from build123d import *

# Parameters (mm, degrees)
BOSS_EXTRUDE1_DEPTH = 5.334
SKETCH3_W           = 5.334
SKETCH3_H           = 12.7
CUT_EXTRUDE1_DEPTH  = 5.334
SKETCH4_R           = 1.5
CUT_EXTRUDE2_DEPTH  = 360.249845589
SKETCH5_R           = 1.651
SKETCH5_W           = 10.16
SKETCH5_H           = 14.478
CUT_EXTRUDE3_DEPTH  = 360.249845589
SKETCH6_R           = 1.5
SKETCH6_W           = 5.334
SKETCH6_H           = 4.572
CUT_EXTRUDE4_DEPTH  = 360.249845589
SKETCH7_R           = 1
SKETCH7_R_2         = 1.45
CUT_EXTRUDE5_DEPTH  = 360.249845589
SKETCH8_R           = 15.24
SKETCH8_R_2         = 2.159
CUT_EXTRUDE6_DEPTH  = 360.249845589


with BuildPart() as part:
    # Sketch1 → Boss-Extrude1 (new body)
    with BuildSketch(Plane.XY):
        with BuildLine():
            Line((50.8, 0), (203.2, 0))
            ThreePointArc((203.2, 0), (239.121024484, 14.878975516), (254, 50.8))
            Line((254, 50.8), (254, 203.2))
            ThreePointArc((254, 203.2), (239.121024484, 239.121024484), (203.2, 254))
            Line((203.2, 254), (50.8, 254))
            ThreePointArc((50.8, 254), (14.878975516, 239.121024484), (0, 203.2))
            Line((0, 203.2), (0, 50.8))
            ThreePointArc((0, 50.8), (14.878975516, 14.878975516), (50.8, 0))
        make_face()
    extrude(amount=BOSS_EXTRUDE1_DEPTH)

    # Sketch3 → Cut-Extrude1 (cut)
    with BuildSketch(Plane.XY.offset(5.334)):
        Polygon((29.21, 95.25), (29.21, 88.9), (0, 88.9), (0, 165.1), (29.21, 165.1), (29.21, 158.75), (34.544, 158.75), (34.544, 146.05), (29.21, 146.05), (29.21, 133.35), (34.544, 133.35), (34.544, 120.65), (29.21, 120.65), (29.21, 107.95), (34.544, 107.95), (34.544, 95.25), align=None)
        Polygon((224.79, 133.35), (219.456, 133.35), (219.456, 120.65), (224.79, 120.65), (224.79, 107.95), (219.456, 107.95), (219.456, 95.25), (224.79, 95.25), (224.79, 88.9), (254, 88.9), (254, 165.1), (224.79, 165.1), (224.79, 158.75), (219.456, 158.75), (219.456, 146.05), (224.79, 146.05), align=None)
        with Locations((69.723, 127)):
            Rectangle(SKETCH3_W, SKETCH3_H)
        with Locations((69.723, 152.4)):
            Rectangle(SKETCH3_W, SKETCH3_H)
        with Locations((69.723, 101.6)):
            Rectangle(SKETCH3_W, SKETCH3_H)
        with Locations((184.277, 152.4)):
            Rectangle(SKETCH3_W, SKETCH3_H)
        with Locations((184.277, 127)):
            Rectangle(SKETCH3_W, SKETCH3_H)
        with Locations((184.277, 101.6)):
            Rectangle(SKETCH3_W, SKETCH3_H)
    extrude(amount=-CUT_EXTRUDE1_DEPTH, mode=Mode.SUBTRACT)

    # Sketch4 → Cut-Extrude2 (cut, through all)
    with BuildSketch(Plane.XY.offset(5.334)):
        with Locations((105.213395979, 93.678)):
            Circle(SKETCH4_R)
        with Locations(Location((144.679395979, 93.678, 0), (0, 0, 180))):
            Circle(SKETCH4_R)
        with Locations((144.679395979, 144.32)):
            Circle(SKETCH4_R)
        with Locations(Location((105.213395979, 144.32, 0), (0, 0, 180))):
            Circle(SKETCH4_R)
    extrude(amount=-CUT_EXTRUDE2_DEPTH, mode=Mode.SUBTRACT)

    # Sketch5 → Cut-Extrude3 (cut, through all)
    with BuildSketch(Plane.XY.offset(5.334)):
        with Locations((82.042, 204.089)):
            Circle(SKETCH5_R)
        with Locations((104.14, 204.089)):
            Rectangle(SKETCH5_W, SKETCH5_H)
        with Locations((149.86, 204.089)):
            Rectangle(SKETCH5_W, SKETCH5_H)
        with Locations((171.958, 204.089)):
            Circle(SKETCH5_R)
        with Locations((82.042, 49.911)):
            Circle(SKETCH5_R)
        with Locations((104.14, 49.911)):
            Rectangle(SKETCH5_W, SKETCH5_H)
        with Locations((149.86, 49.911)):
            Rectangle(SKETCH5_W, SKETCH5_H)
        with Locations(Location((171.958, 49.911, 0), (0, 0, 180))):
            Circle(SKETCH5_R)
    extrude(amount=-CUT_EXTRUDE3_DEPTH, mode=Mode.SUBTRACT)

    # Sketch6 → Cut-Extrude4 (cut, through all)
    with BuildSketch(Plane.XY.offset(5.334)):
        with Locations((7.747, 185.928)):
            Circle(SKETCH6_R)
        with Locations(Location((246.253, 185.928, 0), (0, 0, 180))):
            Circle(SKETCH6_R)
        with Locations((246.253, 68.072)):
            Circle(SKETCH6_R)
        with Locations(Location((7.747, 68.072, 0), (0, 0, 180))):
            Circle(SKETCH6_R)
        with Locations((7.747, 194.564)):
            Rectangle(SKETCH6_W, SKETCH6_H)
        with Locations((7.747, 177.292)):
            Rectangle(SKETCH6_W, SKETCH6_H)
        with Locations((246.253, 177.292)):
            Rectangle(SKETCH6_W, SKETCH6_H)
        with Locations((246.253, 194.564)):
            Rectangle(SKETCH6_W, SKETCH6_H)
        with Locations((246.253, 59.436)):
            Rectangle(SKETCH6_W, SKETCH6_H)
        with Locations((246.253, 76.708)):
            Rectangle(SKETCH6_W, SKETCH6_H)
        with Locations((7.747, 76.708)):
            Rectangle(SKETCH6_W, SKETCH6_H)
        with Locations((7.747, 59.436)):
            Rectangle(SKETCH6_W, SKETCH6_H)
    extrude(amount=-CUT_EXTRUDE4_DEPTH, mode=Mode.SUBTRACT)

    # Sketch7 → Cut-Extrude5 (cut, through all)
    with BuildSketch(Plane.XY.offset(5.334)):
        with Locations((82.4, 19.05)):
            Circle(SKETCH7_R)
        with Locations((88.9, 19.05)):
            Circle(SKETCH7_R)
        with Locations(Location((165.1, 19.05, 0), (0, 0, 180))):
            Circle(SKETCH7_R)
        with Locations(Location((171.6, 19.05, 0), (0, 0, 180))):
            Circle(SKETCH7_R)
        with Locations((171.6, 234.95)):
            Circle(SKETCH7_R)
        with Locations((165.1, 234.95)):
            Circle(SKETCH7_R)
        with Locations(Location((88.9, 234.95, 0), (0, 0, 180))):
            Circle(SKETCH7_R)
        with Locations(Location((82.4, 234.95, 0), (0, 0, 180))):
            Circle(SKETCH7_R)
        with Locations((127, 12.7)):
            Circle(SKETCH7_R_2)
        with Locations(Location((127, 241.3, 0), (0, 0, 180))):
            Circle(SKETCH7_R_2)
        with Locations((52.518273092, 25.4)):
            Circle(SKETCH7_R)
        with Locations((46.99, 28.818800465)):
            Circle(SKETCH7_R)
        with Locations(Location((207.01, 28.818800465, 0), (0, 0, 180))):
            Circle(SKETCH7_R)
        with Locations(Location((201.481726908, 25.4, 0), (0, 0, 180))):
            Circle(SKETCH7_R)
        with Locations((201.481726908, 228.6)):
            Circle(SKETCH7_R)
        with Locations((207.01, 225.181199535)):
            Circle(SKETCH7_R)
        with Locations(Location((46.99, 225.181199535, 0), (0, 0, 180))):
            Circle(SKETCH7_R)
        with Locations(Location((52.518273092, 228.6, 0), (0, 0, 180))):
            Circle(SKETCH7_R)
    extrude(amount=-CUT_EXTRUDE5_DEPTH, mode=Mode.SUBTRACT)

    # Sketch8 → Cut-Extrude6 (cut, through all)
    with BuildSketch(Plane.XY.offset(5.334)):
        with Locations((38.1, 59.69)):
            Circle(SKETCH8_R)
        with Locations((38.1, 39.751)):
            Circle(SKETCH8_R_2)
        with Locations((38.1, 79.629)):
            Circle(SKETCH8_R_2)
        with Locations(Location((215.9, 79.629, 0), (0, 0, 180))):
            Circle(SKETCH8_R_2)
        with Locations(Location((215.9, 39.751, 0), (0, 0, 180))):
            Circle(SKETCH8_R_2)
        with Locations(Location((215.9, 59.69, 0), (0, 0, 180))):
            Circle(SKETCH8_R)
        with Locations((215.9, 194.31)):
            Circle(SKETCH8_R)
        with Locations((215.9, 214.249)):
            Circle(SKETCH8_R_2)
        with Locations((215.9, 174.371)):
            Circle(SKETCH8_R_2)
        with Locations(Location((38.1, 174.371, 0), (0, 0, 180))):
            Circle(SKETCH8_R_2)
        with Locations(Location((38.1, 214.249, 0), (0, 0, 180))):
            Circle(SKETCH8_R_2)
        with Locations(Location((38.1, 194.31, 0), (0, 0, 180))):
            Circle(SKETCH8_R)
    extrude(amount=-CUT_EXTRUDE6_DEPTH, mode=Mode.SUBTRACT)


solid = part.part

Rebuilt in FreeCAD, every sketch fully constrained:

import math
import FreeCAD as App
import Part
import Sketcher

V = App.Vector
Q = App.Units.Quantity


def add_polygon(sketch, points):
    """Adds a closed chain of lines whose ends are joined by coincident constraints."""
    first, n = sketch.GeometryCount, len(points)
    for a, b in zip(points, points[1:] + points[:1]):
        sketch.addGeometry(Part.LineSegment(App.Vector(*a, 0), App.Vector(*b, 0)), False)
    for i in range(n):
        sketch.addConstraint(Sketcher.Constraint("Coincident", first + i, 2, first + (i + 1) % n, 1))

doc = App.newDocument("Part")
body = doc.addObject("PartDesign::Body", "Body")

# Sketch on XY plane
sketch1 = doc.addObject("Sketcher::SketchObject", "Sketch")
body.addObject(sketch1)
sketch1.AttachmentSupport = (doc.XY_Plane, [""])
sketch1.MapMode = "FlatFace"
sketch1.addGeometry(Part.LineSegment(V(50.8, 0, 0), V(203.2, 0, 0)), False)
sketch1.addGeometry(Part.ArcOfCircle(Part.Circle(V(203.2, 50.8, 0), V(0, 0, 1), 50.8), math.radians(-90), math.radians(0)), False)
sketch1.addGeometry(Part.LineSegment(V(254, 50.8, 0), V(254, 203.2, 0)), False)
sketch1.addGeometry(Part.ArcOfCircle(Part.Circle(V(203.2, 203.2, 0), V(0, 0, 1), 50.8), math.radians(0), math.radians(90)), False)
sketch1.addGeometry(Part.LineSegment(V(203.2, 254, 0), V(50.8, 254, 0)), False)
sketch1.addGeometry(Part.ArcOfCircle(Part.Circle(V(50.8, 203.2, 0), V(0, 0, 1), 50.8), math.radians(90), math.radians(180)), False)
sketch1.addGeometry(Part.LineSegment(V(0, 203.2, 0), V(0, 50.8, 0)), False)
sketch1.addGeometry(Part.ArcOfCircle(Part.Circle(V(50.8, 50.8, 0), V(0, 0, 1), 50.8), math.radians(-180), math.radians(-90)), False)
sketch1.addConstraint(Sketcher.Constraint("Tangent", 0, 2, 1, 1))
sketch1.addConstraint(Sketcher.Constraint("Tangent", 1, 2, 2, 1))
sketch1.addConstraint(Sketcher.Constraint("Tangent", 2, 2, 3, 1))
sketch1.addConstraint(Sketcher.Constraint("Tangent", 3, 2, 4, 1))
sketch1.addConstraint(Sketcher.Constraint("Tangent", 4, 2, 5, 1))
sketch1.addConstraint(Sketcher.Constraint("Tangent", 5, 2, 6, 1))
sketch1.addConstraint(Sketcher.Constraint("Tangent", 6, 2, 7, 1))
sketch1.addConstraint(Sketcher.Constraint("Tangent", 7, 2, 0, 1))
sketch1.addConstraint(Sketcher.Constraint("Horizontal", 0))
sketch1.addConstraint(Sketcher.Constraint("Vertical", 2))
sketch1.addConstraint(Sketcher.Constraint("Horizontal", 4))
sketch1.addConstraint(Sketcher.Constraint("Vertical", 6))
sketch1.addConstraint(Sketcher.Constraint("Equal", 1, 3))
sketch1.addConstraint(Sketcher.Constraint("Equal", 3, 5))
sketch1.addConstraint(Sketcher.Constraint("Equal", 5, 7))
sketch1.addConstraint(Sketcher.Constraint("PointOnObject", 0, 2, -1))
sketch1.addConstraint(Sketcher.Constraint("PointOnObject", 5, 2, -2))
sketch1.addConstraint(Sketcher.Constraint("Equal", 4, 2))
sketch1.addConstraint(Sketcher.Constraint("Radius", 1, Q("2 in")))
sketch1.addConstraint(Sketcher.Constraint("DistanceX", 0, 1, 0, 2, Q("6 in")))
pad1 = doc.addObject("PartDesign::Pad", "Pad")
body.addObject(pad1)
pad1.Profile = sketch1
pad1.Length = Q("0.21 in")

# Sketch on XY plane
sketch2 = doc.addObject("Sketcher::SketchObject", "Sketch001")
body.addObject(sketch2)
sketch2.AttachmentSupport = (doc.XY_Plane, [""])
sketch2.MapMode = "FlatFace"
sketch2.AttachmentOffset = App.Placement(V(0, 0, 0.21 * 25.4), App.Rotation())
add_polygon(sketch2, [(29.21, 88.9), (29.21, 95.25), (34.544, 95.25), (34.544, 107.95), (29.21, 107.95), (29.21, 120.65), (34.544, 120.65), (34.544, 133.35), (29.21, 133.35), (29.21, 146.05), (34.544, 146.05), (34.544, 158.75), (29.21, 158.75), (29.21, 165.1), (0, 165.1), (0, 88.9)])  # lines 0-15
add_polygon(sketch2, [(224.79, 133.35), (219.456, 133.35), (219.456, 120.65), (224.79, 120.65), (224.79, 107.95), (219.456, 107.95), (219.456, 95.25), (224.79, 95.25), (224.79, 88.9), (254, 88.9), (254, 165.1), (224.79, 165.1), (224.79, 158.75), (219.456, 158.75), (219.456, 146.05), (224.79, 146.05)])  # lines 16-31
add_polygon(sketch2, [(67.056, 133.35), (67.056, 120.65), (72.39, 120.65), (72.39, 133.35)])  # lines 32-35
add_polygon(sketch2, [(67.056, 158.75), (67.056, 146.05), (72.39, 146.05), (72.39, 158.75)])  # lines 36-39
add_polygon(sketch2, [(67.056, 107.95), (67.056, 95.25), (72.39, 95.25), (72.39, 107.95)])  # lines 40-43
add_polygon(sketch2, [(181.61, 158.75), (181.61, 146.05), (186.944, 146.05), (186.944, 158.75)])  # lines 44-47
add_polygon(sketch2, [(181.61, 133.35), (181.61, 120.65), (186.944, 120.65), (186.944, 133.35)])  # lines 48-51
add_polygon(sketch2, [(181.61, 107.95), (181.61, 95.25), (186.944, 95.25), (186.944, 107.95)])  # lines 52-55
sketch2.addConstraint(Sketcher.Constraint("Vertical", 0))
sketch2.addConstraint(Sketcher.Constraint("Horizontal", 1))
sketch2.addConstraint(Sketcher.Constraint("Vertical", 2))
sketch2.addConstraint(Sketcher.Constraint("Horizontal", 3))
sketch2.addConstraint(Sketcher.Constraint("Vertical", 4))
sketch2.addConstraint(Sketcher.Constraint("Horizontal", 5))
sketch2.addConstraint(Sketcher.Constraint("Vertical", 6))
sketch2.addConstraint(Sketcher.Constraint("Horizontal", 7))
sketch2.addConstraint(Sketcher.Constraint("Vertical", 8))
sketch2.addConstraint(Sketcher.Constraint("Horizontal", 9))
sketch2.addConstraint(Sketcher.Constraint("Vertical", 10))
sketch2.addConstraint(Sketcher.Constraint("Horizontal", 11))
sketch2.addConstraint(Sketcher.Constraint("Vertical", 12))
sketch2.addConstraint(Sketcher.Constraint("Horizontal", 13))
sketch2.addConstraint(Sketcher.Constraint("Vertical", 14))
sketch2.addConstraint(Sketcher.Constraint("Horizontal", 15))
sketch2.addConstraint(Sketcher.Constraint("Horizontal", 16))
sketch2.addConstraint(Sketcher.Constraint("Vertical", 17))
sketch2.addConstraint(Sketcher.Constraint("Horizontal", 18))
sketch2.addConstraint(Sketcher.Constraint("Vertical", 19))
sketch2.addConstraint(Sketcher.Constraint("Horizontal", 20))
sketch2.addConstraint(Sketcher.Constraint("Vertical", 21))
sketch2.addConstraint(Sketcher.Constraint("Horizontal", 22))
sketch2.addConstraint(Sketcher.Constraint("Vertical", 23))
sketch2.addConstraint(Sketcher.Constraint("Horizontal", 24))
sketch2.addConstraint(Sketcher.Constraint("Vertical", 25))
sketch2.addConstraint(Sketcher.Constraint("Horizontal", 26))
sketch2.addConstraint(Sketcher.Constraint("Vertical", 27))
sketch2.addConstraint(Sketcher.Constraint("Horizontal", 28))
sketch2.addConstraint(Sketcher.Constraint("Vertical", 29))
sketch2.addConstraint(Sketcher.Constraint("Horizontal", 30))
sketch2.addConstraint(Sketcher.Constraint("Vertical", 31))
sketch2.addConstraint(Sketcher.Constraint("Vertical", 32))
sketch2.addConstraint(Sketcher.Constraint("Horizontal", 33))
sketch2.addConstraint(Sketcher.Constraint("Vertical", 34))
sketch2.addConstraint(Sketcher.Constraint("Horizontal", 35))
sketch2.addConstraint(Sketcher.Constraint("Vertical", 36))
sketch2.addConstraint(Sketcher.Constraint("Horizontal", 37))
sketch2.addConstraint(Sketcher.Constraint("Vertical", 38))
sketch2.addConstraint(Sketcher.Constraint("Horizontal", 39))
sketch2.addConstraint(Sketcher.Constraint("Vertical", 40))
sketch2.addConstraint(Sketcher.Constraint("Horizontal", 41))
sketch2.addConstraint(Sketcher.Constraint("Vertical", 42))
sketch2.addConstraint(Sketcher.Constraint("Horizontal", 43))
sketch2.addConstraint(Sketcher.Constraint("Vertical", 44))
sketch2.addConstraint(Sketcher.Constraint("Horizontal", 45))
sketch2.addConstraint(Sketcher.Constraint("Vertical", 46))
sketch2.addConstraint(Sketcher.Constraint("Horizontal", 47))
sketch2.addConstraint(Sketcher.Constraint("Vertical", 48))
sketch2.addConstraint(Sketcher.Constraint("Horizontal", 49))
sketch2.addConstraint(Sketcher.Constraint("Vertical", 50))
sketch2.addConstraint(Sketcher.Constraint("Horizontal", 51))
sketch2.addConstraint(Sketcher.Constraint("Vertical", 52))
sketch2.addConstraint(Sketcher.Constraint("Horizontal", 53))
sketch2.addConstraint(Sketcher.Constraint("Vertical", 54))
sketch2.addConstraint(Sketcher.Constraint("Horizontal", 55))
sketch2.addConstraint(Sketcher.Constraint("PointOnObject", 13, 2, -2))
sketch2.addConstraint(Sketcher.Constraint("Horizontal", 7, 2, 16, 2))
sketch2.addConstraint(Sketcher.Constraint("Horizontal", 5, 2, 17, 2))
sketch2.addConstraint(Sketcher.Constraint("Horizontal", 3, 2, 19, 2))
sketch2.addConstraint(Sketcher.Constraint("Horizontal", 1, 2, 21, 2))
sketch2.addConstraint(Sketcher.Constraint("Horizontal", 15, 2, 23, 2))
sketch2.addConstraint(Sketcher.Constraint("Horizontal", 13, 2, 25, 2))
sketch2.addConstraint(Sketcher.Constraint("Horizontal", 11, 2, 27, 2))
sketch2.addConstraint(Sketcher.Constraint("Horizontal", 9, 2, 29, 2))
sketch2.addConstraint(Sketcher.Constraint("Horizontal", 18, 2, 32, 2))
sketch2.addConstraint(Sketcher.Constraint("Horizontal", 31, 2, 34, 2))
sketch2.addConstraint(Sketcher.Constraint("Horizontal", 30, 2, 36, 2))
sketch2.addConstraint(Sketcher.Constraint("Horizontal", 28, 2, 38, 2))
sketch2.addConstraint(Sketcher.Constraint("Horizontal", 22, 2, 40, 2))
sketch2.addConstraint(Sketcher.Constraint("Horizontal", 20, 2, 42, 2))
sketch2.addConstraint(Sketcher.Constraint("Horizontal", 37, 2, 44, 2))
sketch2.addConstraint(Sketcher.Constraint("Horizontal", 39, 2, 46, 2))
sketch2.addConstraint(Sketcher.Constraint("Horizontal", 33, 2, 48, 2))
sketch2.addConstraint(Sketcher.Constraint("Horizontal", 35, 2, 50, 2))
sketch2.addConstraint(Sketcher.Constraint("Horizontal", 41, 2, 52, 2))
sketch2.addConstraint(Sketcher.Constraint("Horizontal", 43, 2, 54, 2))
sketch2.addConstraint(Sketcher.Constraint("Vertical", 0, 2, 3, 2))
sketch2.addConstraint(Sketcher.Constraint("Vertical", 2, 2, 5, 2))
sketch2.addConstraint(Sketcher.Constraint("Vertical", 4, 2, 7, 2))
sketch2.addConstraint(Sketcher.Constraint("Vertical", 6, 2, 9, 2))
sketch2.addConstraint(Sketcher.Constraint("Vertical", 8, 2, 11, 2))
sketch2.addConstraint(Sketcher.Constraint("Vertical", 17, 2, 20, 2))
sketch2.addConstraint(Sketcher.Constraint("Vertical", 19, 2, 22, 2))
sketch2.addConstraint(Sketcher.Constraint("Vertical", 23, 2, 26, 2))
sketch2.addConstraint(Sketcher.Constraint("Vertical", 21, 2, 28, 2))
sketch2.addConstraint(Sketcher.Constraint("Vertical", 27, 2, 30, 2))
sketch2.addConstraint(Sketcher.Constraint("Vertical", 35, 2, 36, 2))
sketch2.addConstraint(Sketcher.Constraint("Vertical", 34, 2, 37, 2))
sketch2.addConstraint(Sketcher.Constraint("Vertical", 39, 2, 40, 2))
sketch2.addConstraint(Sketcher.Constraint("Vertical", 38, 2, 41, 2))
sketch2.addConstraint(Sketcher.Constraint("Vertical", 47, 2, 48, 2))
sketch2.addConstraint(Sketcher.Constraint("Vertical", 46, 2, 49, 2))
sketch2.addConstraint(Sketcher.Constraint("Vertical", 51, 2, 52, 2))
sketch2.addConstraint(Sketcher.Constraint("Vertical", 50, 2, 53, 2))
sketch2.addConstraint(Sketcher.Constraint("Equal", 11, 16))
sketch2.addConstraint(Sketcher.Constraint("Equal", 15, 24))
sketch2.addConstraint(Sketcher.Constraint("Equal", 30, 33))
sketch2.addConstraint(Sketcher.Constraint("Equal", 43, 45))
sketch2.addConstraint(Sketcher.Constraint("Equal", 2, 4))
sketch2.addConstraint(Sketcher.Constraint("Equal", 4, 6))
sketch2.addConstraint(Sketcher.Constraint("Equal", 6, 8))
sketch2.addConstraint(Sketcher.Constraint("Equal", 8, 10))
sketch2.addConstraint(Sketcher.Constraint("Equal", 0, 12))
sketch2.addConstraint(Sketcher.Constraint("DistanceY", 14, 2, 14, 1, Q("3 in")))
sketch2.addConstraint(Sketcher.Constraint("DistanceY", 2, 1, 2, 2, Q("0.5 in")))
sketch2.addConstraint(Sketcher.Constraint("DistanceX", -1, 1, 24, 2, Q("10 in")))
sketch2.addConstraint(Sketcher.Constraint("DistanceX", 1, 1, 1, 2, Q("0.21 in")))
sketch2.addConstraint(Sketcher.Constraint("DistanceX", 13, 2, 13, 1, Q("1.15 in")))
sketch2.addConstraint(Sketcher.Constraint("DistanceY", -1, 1, 12, 2, Q("6.5 in")))
sketch2.addConstraint(Sketcher.Constraint("DistanceX", 4, 2, 33, 2, Q("1.7 in")))
sketch2.addConstraint(Sketcher.Constraint("DistanceX", 44, 2, 30, 2, Q("1.7 in")))
pocket1 = doc.addObject("PartDesign::Pocket", "Pocket")
body.addObject(pocket1)
pocket1.Profile = sketch2
pocket1.Length = Q("0.21 in")

# Sketch on XY plane
sketch3 = doc.addObject("Sketcher::SketchObject", "Sketch002")
body.addObject(sketch3)
sketch3.AttachmentSupport = (doc.XY_Plane, [""])
sketch3.MapMode = "FlatFace"
sketch3.AttachmentOffset = App.Placement(V(0, 0, 0.21 * 25.4), App.Rotation())
sketch3.addGeometry(Part.Circle(V(105.213396, 93.678, 0), V(0, 0, 1), 1.5), False)
sketch3.addGeometry(Part.Circle(V(144.679396, 93.678, 0), V(0, 0, 1), 1.5), False)
sketch3.addGeometry(Part.Circle(V(144.679396, 144.32, 0), V(0, 0, 1), 1.5), False)
sketch3.addGeometry(Part.Circle(V(105.213396, 144.32, 0), V(0, 0, 1), 1.5), False)
sketch3.addConstraint(Sketcher.Constraint("Equal", 0, 1))
sketch3.addConstraint(Sketcher.Constraint("Equal", 1, 2))
sketch3.addConstraint(Sketcher.Constraint("Equal", 2, 3))
sketch3.addConstraint(Sketcher.Constraint("Horizontal", 0, 3, 1, 3))
sketch3.addConstraint(Sketcher.Constraint("Horizontal", 2, 3, 3, 3))
sketch3.addConstraint(Sketcher.Constraint("Vertical", 1, 3, 2, 3))
sketch3.addConstraint(Sketcher.Constraint("Vertical", 0, 3, 3, 3))
sketch3.addConstraint(Sketcher.Constraint("Diameter", 0, Q("3 mm")))
sketch3.addConstraint(Sketcher.Constraint("DistanceY", -1, 1, 0, 3, Q("93.678 mm")))
sketch3.addConstraint(Sketcher.Constraint("DistanceY", -1, 1, 2, 3, Q("144.32 mm")))
sketch3.addConstraint(Sketcher.Constraint("DistanceX", 0, 3, 1, 3, Q("39.466 mm")))
sketch3.addConstraint(Sketcher.Constraint("DistanceX", -1, 1, 0, 3, Q("105.213396 mm")))
pocket2 = doc.addObject("PartDesign::Pocket", "Pocket001")
body.addObject(pocket2)
pocket2.Profile = sketch3
pocket2.Type = "ThroughAll"

# Sketch on XY plane
sketch4 = doc.addObject("Sketcher::SketchObject", "Sketch003")
body.addObject(sketch4)
sketch4.AttachmentSupport = (doc.XY_Plane, [""])
sketch4.MapMode = "FlatFace"
sketch4.AttachmentOffset = App.Placement(V(0, 0, 0.21 * 25.4), App.Rotation())
sketch4.addGeometry(Part.Circle(V(82.042, 204.089, 0), V(0, 0, 1), 1.651), False)  # 0
add_polygon(sketch4, [(99.06, 211.328), (99.06, 196.85), (109.22, 196.85), (109.22, 211.328)])  # lines 1-4
add_polygon(sketch4, [(144.78, 211.328), (144.78, 196.85), (154.94, 196.85), (154.94, 211.328)])  # lines 5-8
sketch4.addGeometry(Part.Circle(V(171.958, 204.089, 0), V(0, 0, 1), 1.651), False)  # 9
sketch4.addGeometry(Part.Circle(V(82.042, 49.911, 0), V(0, 0, 1), 1.651), False)  # 10
add_polygon(sketch4, [(99.06, 57.15), (99.06, 42.672), (109.22, 42.672), (109.22, 57.15)])  # lines 11-14
add_polygon(sketch4, [(144.78, 57.15), (144.78, 42.672), (154.94, 42.672), (154.94, 57.15)])  # lines 15-18
sketch4.addGeometry(Part.Circle(V(171.958, 49.911, 0), V(0, 0, 1), 1.651), False)  # 19
sketch4.addConstraint(Sketcher.Constraint("Vertical", 1))
sketch4.addConstraint(Sketcher.Constraint("Horizontal", 2))
sketch4.addConstraint(Sketcher.Constraint("Vertical", 3))
sketch4.addConstraint(Sketcher.Constraint("Horizontal", 4))
sketch4.addConstraint(Sketcher.Constraint("Vertical", 5))
sketch4.addConstraint(Sketcher.Constraint("Horizontal", 6))
sketch4.addConstraint(Sketcher.Constraint("Vertical", 7))
sketch4.addConstraint(Sketcher.Constraint("Horizontal", 8))
sketch4.addConstraint(Sketcher.Constraint("Vertical", 11))
sketch4.addConstraint(Sketcher.Constraint("Horizontal", 12))
sketch4.addConstraint(Sketcher.Constraint("Vertical", 13))
sketch4.addConstraint(Sketcher.Constraint("Horizontal", 14))
sketch4.addConstraint(Sketcher.Constraint("Vertical", 15))
sketch4.addConstraint(Sketcher.Constraint("Horizontal", 16))
sketch4.addConstraint(Sketcher.Constraint("Vertical", 17))
sketch4.addConstraint(Sketcher.Constraint("Horizontal", 18))
sketch4.addConstraint(Sketcher.Constraint("Equal", 0, 9))
sketch4.addConstraint(Sketcher.Constraint("Equal", 9, 10))
sketch4.addConstraint(Sketcher.Constraint("Equal", 10, 19))
sketch4.addConstraint(Sketcher.Constraint("Horizontal", 0, 3, 9, 3))
sketch4.addConstraint(Sketcher.Constraint("Horizontal", 10, 3, 19, 3))
sketch4.addConstraint(Sketcher.Constraint("Horizontal", 2, 2, 5, 2))
sketch4.addConstraint(Sketcher.Constraint("Horizontal", 4, 2, 7, 2))
sketch4.addConstraint(Sketcher.Constraint("Horizontal", 12, 2, 15, 2))
sketch4.addConstraint(Sketcher.Constraint("Horizontal", 14, 2, 17, 2))
sketch4.addConstraint(Sketcher.Constraint("Vertical", 0, 3, 10, 3))
sketch4.addConstraint(Sketcher.Constraint("Vertical", 9, 3, 19, 3))
sketch4.addConstraint(Sketcher.Constraint("Vertical", 4, 2, 11, 2))
sketch4.addConstraint(Sketcher.Constraint("Vertical", 3, 2, 12, 2))
sketch4.addConstraint(Sketcher.Constraint("Vertical", 8, 2, 15, 2))
sketch4.addConstraint(Sketcher.Constraint("Vertical", 7, 2, 16, 2))
sketch4.addConstraint(Sketcher.Constraint("Equal", 4, 6))
sketch4.addConstraint(Sketcher.Constraint("Equal", 7, 11))
sketch4.addConstraint(Sketcher.Constraint("Diameter", 0, Q("0.13 in")))
sketch4.addConstraint(Sketcher.Constraint("DistanceX", 2, 1, 2, 2, Q("0.4 in")))
sketch4.addConstraint(Sketcher.Constraint("DistanceY", 1, 2, 1, 1, Q("0.57 in")))
sketch4.addConstraint(Sketcher.Constraint("DistanceX", -1, 1, 1, 2, Q("3.9 in")))
sketch4.addConstraint(Sketcher.Constraint("DistanceX", -1, 1, 5, 2, Q("5.7 in")))
sketch4.addConstraint(Sketcher.Constraint("DistanceY", 13, 2, 2, 2, Q("5.5 in")))
sketch4.addConstraint(Sketcher.Constraint("DistanceX", -1, 1, 0, 3, Q("3.23 in")))
sketch4.addConstraint(Sketcher.Constraint("DistanceX", -1, 1, 9, 3, Q("6.77 in")))
sketch4.addConstraint(Sketcher.Constraint("DistanceY", -1, 1, 1, 2, Q("7.75 in")))
sketch4.addConstraint(Sketcher.Constraint("DistanceY", 10, 3, 0, 3, Q("6.07 in")))
sketch4.addConstraint(Sketcher.Constraint("DistanceY", -1, 1, 0, 3, Q("8.035 in")))
pocket3 = doc.addObject("PartDesign::Pocket", "Pocket002")
body.addObject(pocket3)
pocket3.Profile = sketch4
pocket3.Type = "ThroughAll"

# Sketch on XY plane
sketch5 = doc.addObject("Sketcher::SketchObject", "Sketch004")
body.addObject(sketch5)
sketch5.AttachmentSupport = (doc.XY_Plane, [""])
sketch5.MapMode = "FlatFace"
sketch5.AttachmentOffset = App.Placement(V(0, 0, 0.21 * 25.4), App.Rotation())
sketch5.addGeometry(Part.Circle(V(7.747, 185.928, 0), V(0, 0, 1), 1.5), False)  # 0
sketch5.addGeometry(Part.Circle(V(246.253, 185.928, 0), V(0, 0, 1), 1.5), False)  # 1
sketch5.addGeometry(Part.Circle(V(246.253, 68.072, 0), V(0, 0, 1), 1.5), False)  # 2
sketch5.addGeometry(Part.Circle(V(7.747, 68.072, 0), V(0, 0, 1), 1.5), False)  # 3
add_polygon(sketch5, [(5.08, 196.85), (5.08, 192.278), (10.414, 192.278), (10.414, 196.85)])  # lines 4-7
add_polygon(sketch5, [(5.08, 179.578), (5.08, 175.006), (10.414, 175.006), (10.414, 179.578)])  # lines 8-11
add_polygon(sketch5, [(243.586, 179.578), (243.586, 175.006), (248.92, 175.006), (248.92, 179.578)])  # lines 12-15
add_polygon(sketch5, [(243.586, 196.85), (243.586, 192.278), (248.92, 192.278), (248.92, 196.85)])  # lines 16-19
add_polygon(sketch5, [(243.586, 61.722), (243.586, 57.15), (248.92, 57.15), (248.92, 61.722)])  # lines 20-23
add_polygon(sketch5, [(243.586, 78.994), (243.586, 74.422), (248.92, 74.422), (248.92, 78.994)])  # lines 24-27
add_polygon(sketch5, [(5.08, 78.994), (5.08, 74.422), (10.414, 74.422), (10.414, 78.994)])  # lines 28-31
add_polygon(sketch5, [(5.08, 61.722), (5.08, 57.15), (10.414, 57.15), (10.414, 61.722)])  # lines 32-35
sketch5.addConstraint(Sketcher.Constraint("Vertical", 4))
sketch5.addConstraint(Sketcher.Constraint("Horizontal", 5))
sketch5.addConstraint(Sketcher.Constraint("Vertical", 6))
sketch5.addConstraint(Sketcher.Constraint("Horizontal", 7))
sketch5.addConstraint(Sketcher.Constraint("Vertical", 8))
sketch5.addConstraint(Sketcher.Constraint("Horizontal", 9))
sketch5.addConstraint(Sketcher.Constraint("Vertical", 10))
sketch5.addConstraint(Sketcher.Constraint("Horizontal", 11))
sketch5.addConstraint(Sketcher.Constraint("Vertical", 12))
sketch5.addConstraint(Sketcher.Constraint("Horizontal", 13))
sketch5.addConstraint(Sketcher.Constraint("Vertical", 14))
sketch5.addConstraint(Sketcher.Constraint("Horizontal", 15))
sketch5.addConstraint(Sketcher.Constraint("Vertical", 16))
sketch5.addConstraint(Sketcher.Constraint("Horizontal", 17))
sketch5.addConstraint(Sketcher.Constraint("Vertical", 18))
sketch5.addConstraint(Sketcher.Constraint("Horizontal", 19))
sketch5.addConstraint(Sketcher.Constraint("Vertical", 20))
sketch5.addConstraint(Sketcher.Constraint("Horizontal", 21))
sketch5.addConstraint(Sketcher.Constraint("Vertical", 22))
sketch5.addConstraint(Sketcher.Constraint("Horizontal", 23))
sketch5.addConstraint(Sketcher.Constraint("Vertical", 24))
sketch5.addConstraint(Sketcher.Constraint("Horizontal", 25))
sketch5.addConstraint(Sketcher.Constraint("Vertical", 26))
sketch5.addConstraint(Sketcher.Constraint("Horizontal", 27))
sketch5.addConstraint(Sketcher.Constraint("Vertical", 28))
sketch5.addConstraint(Sketcher.Constraint("Horizontal", 29))
sketch5.addConstraint(Sketcher.Constraint("Vertical", 30))
sketch5.addConstraint(Sketcher.Constraint("Horizontal", 31))
sketch5.addConstraint(Sketcher.Constraint("Vertical", 32))
sketch5.addConstraint(Sketcher.Constraint("Horizontal", 33))
sketch5.addConstraint(Sketcher.Constraint("Vertical", 34))
sketch5.addConstraint(Sketcher.Constraint("Horizontal", 35))
sketch5.addConstraint(Sketcher.Constraint("Equal", 0, 1))
sketch5.addConstraint(Sketcher.Constraint("Equal", 1, 2))
sketch5.addConstraint(Sketcher.Constraint("Equal", 2, 3))
sketch5.addConstraint(Sketcher.Constraint("Horizontal", 0, 3, 1, 3))
sketch5.addConstraint(Sketcher.Constraint("Horizontal", 2, 3, 3, 3))
sketch5.addConstraint(Sketcher.Constraint("Horizontal", 9, 2, 12, 2))
sketch5.addConstraint(Sketcher.Constraint("Horizontal", 11, 2, 14, 2))
sketch5.addConstraint(Sketcher.Constraint("Horizontal", 5, 2, 16, 2))
sketch5.addConstraint(Sketcher.Constraint("Horizontal", 7, 2, 18, 2))
sketch5.addConstraint(Sketcher.Constraint("Horizontal", 25, 2, 28, 2))
sketch5.addConstraint(Sketcher.Constraint("Horizontal", 27, 2, 30, 2))
sketch5.addConstraint(Sketcher.Constraint("Horizontal", 21, 2, 32, 2))
sketch5.addConstraint(Sketcher.Constraint("Horizontal", 23, 2, 34, 2))
sketch5.addConstraint(Sketcher.Constraint("Vertical", 1, 3, 2, 3))
sketch5.addConstraint(Sketcher.Constraint("Vertical", 0, 3, 3, 3))
sketch5.addConstraint(Sketcher.Constraint("Vertical", 7, 2, 8, 2))
sketch5.addConstraint(Sketcher.Constraint("Vertical", 6, 2, 9, 2))
sketch5.addConstraint(Sketcher.Constraint("Vertical", 15, 2, 16, 2))
sketch5.addConstraint(Sketcher.Constraint("Vertical", 14, 2, 17, 2))
sketch5.addConstraint(Sketcher.Constraint("Vertical", 19, 2, 20, 2))
sketch5.addConstraint(Sketcher.Constraint("Vertical", 18, 2, 21, 2))
sketch5.addConstraint(Sketcher.Constraint("Vertical", 23, 2, 24, 2))
sketch5.addConstraint(Sketcher.Constraint("Vertical", 22, 2, 25, 2))
sketch5.addConstraint(Sketcher.Constraint("Vertical", 11, 2, 28, 2))
sketch5.addConstraint(Sketcher.Constraint("Vertical", 10, 2, 29, 2))
sketch5.addConstraint(Sketcher.Constraint("Vertical", 31, 2, 32, 2))
sketch5.addConstraint(Sketcher.Constraint("Vertical", 30, 2, 33, 2))
sketch5.addConstraint(Sketcher.Constraint("Equal", 11, 13))
sketch5.addConstraint(Sketcher.Constraint("Equal", 6, 8))
sketch5.addConstraint(Sketcher.Constraint("Equal", 18, 20))
sketch5.addConstraint(Sketcher.Constraint("Equal", 22, 24))
sketch5.addConstraint(Sketcher.Constraint("DistanceX", 5, 1, 5, 2, Q("0.21 in")))
sketch5.addConstraint(Sketcher.Constraint("DistanceY", 4, 2, 4, 1, Q("0.18 in")))
sketch5.addConstraint(Sketcher.Constraint("DistanceX", -1, 1, 4, 2, Q("0.2 in")))
sketch5.addConstraint(Sketcher.Constraint("DistanceX", -1, 1, 13, 2, Q("9.8 in")))
sketch5.addConstraint(Sketcher.Constraint("DistanceY", 10, 2, 5, 2, Q("0.5 in")))
sketch5.addConstraint(Sketcher.Constraint("DistanceY", 23, 2, 24, 2, Q("0.5 in")))
sketch5.addConstraint(Sketcher.Constraint("Diameter", 0, Q("3 mm")))
sketch5.addConstraint(Sketcher.Constraint("DistanceY", -1, 1, 0, 3, Q("7.32 in")))
sketch5.addConstraint(Sketcher.Constraint("DistanceY", -1, 1, 2, 3, Q("2.68 in")))
sketch5.addConstraint(Sketcher.Constraint("DistanceY", -1, 1, 4, 2, Q("7.57 in")))
sketch5.addConstraint(Sketcher.Constraint("DistanceY", -1, 1, 20, 2, Q("2.25 in")))
sketch5.addConstraint(Sketcher.Constraint("DistanceX", 0, 3, 1, 3, Q("9.39 in")))
sketch5.addConstraint(Sketcher.Constraint("DistanceX", -1, 1, 0, 3, Q("0.305 in")))
pocket4 = doc.addObject("PartDesign::Pocket", "Pocket003")
body.addObject(pocket4)
pocket4.Profile = sketch5
pocket4.Type = "ThroughAll"

# Sketch on XY plane
sketch6 = doc.addObject("Sketcher::SketchObject", "Sketch005")
body.addObject(sketch6)
sketch6.AttachmentSupport = (doc.XY_Plane, [""])
sketch6.MapMode = "FlatFace"
sketch6.AttachmentOffset = App.Placement(V(0, 0, 0.21 * 25.4), App.Rotation())
sketch6.addGeometry(Part.Circle(V(82.4, 19.05, 0), V(0, 0, 1), 1), False)
sketch6.addGeometry(Part.Circle(V(88.9, 19.05, 0), V(0, 0, 1), 1), False)
sketch6.addGeometry(Part.Circle(V(165.1, 19.05, 0), V(0, 0, 1), 1), False)
sketch6.addGeometry(Part.Circle(V(171.6, 19.05, 0), V(0, 0, 1), 1), False)
sketch6.addGeometry(Part.Circle(V(171.6, 234.95, 0), V(0, 0, 1), 1), False)
sketch6.addGeometry(Part.Circle(V(165.1, 234.95, 0), V(0, 0, 1), 1), False)
sketch6.addGeometry(Part.Circle(V(88.9, 234.95, 0), V(0, 0, 1), 1), False)
sketch6.addGeometry(Part.Circle(V(82.4, 234.95, 0), V(0, 0, 1), 1), False)
sketch6.addGeometry(Part.Circle(V(127, 12.7, 0), V(0, 0, 1), 1.45), False)
sketch6.addGeometry(Part.Circle(V(127, 241.3, 0), V(0, 0, 1), 1.45), False)
sketch6.addGeometry(Part.Circle(V(52.518273, 25.4, 0), V(0, 0, 1), 1), False)
sketch6.addGeometry(Part.Circle(V(46.99, 28.8188, 0), V(0, 0, 1), 1), False)
sketch6.addGeometry(Part.Circle(V(207.01, 28.8188, 0), V(0, 0, 1), 1), False)
sketch6.addGeometry(Part.Circle(V(201.481727, 25.4, 0), V(0, 0, 1), 1), False)
sketch6.addGeometry(Part.Circle(V(201.481727, 228.6, 0), V(0, 0, 1), 1), False)
sketch6.addGeometry(Part.Circle(V(207.01, 225.1812, 0), V(0, 0, 1), 1), False)
sketch6.addGeometry(Part.Circle(V(46.99, 225.1812, 0), V(0, 0, 1), 1), False)
sketch6.addGeometry(Part.Circle(V(52.518273, 228.6, 0), V(0, 0, 1), 1), False)
sketch6.addConstraint(Sketcher.Constraint("Equal", 0, 1))
sketch6.addConstraint(Sketcher.Constraint("Equal", 1, 2))
sketch6.addConstraint(Sketcher.Constraint("Equal", 2, 3))
sketch6.addConstraint(Sketcher.Constraint("Equal", 3, 4))
sketch6.addConstraint(Sketcher.Constraint("Equal", 4, 5))
sketch6.addConstraint(Sketcher.Constraint("Equal", 5, 6))
sketch6.addConstraint(Sketcher.Constraint("Equal", 6, 7))
sketch6.addConstraint(Sketcher.Constraint("Equal", 8, 9))
sketch6.addConstraint(Sketcher.Constraint("Equal", 7, 10))
sketch6.addConstraint(Sketcher.Constraint("Equal", 10, 11))
sketch6.addConstraint(Sketcher.Constraint("Equal", 11, 12))
sketch6.addConstraint(Sketcher.Constraint("Equal", 12, 13))
sketch6.addConstraint(Sketcher.Constraint("Equal", 13, 14))
sketch6.addConstraint(Sketcher.Constraint("Equal", 14, 15))
sketch6.addConstraint(Sketcher.Constraint("Equal", 15, 16))
sketch6.addConstraint(Sketcher.Constraint("Equal", 16, 17))
sketch6.addConstraint(Sketcher.Constraint("Horizontal", 0, 3, 1, 3))
sketch6.addConstraint(Sketcher.Constraint("Horizontal", 1, 3, 2, 3))
sketch6.addConstraint(Sketcher.Constraint("Horizontal", 2, 3, 3, 3))
sketch6.addConstraint(Sketcher.Constraint("Horizontal", 4, 3, 5, 3))
sketch6.addConstraint(Sketcher.Constraint("Horizontal", 5, 3, 6, 3))
sketch6.addConstraint(Sketcher.Constraint("Horizontal", 6, 3, 7, 3))
sketch6.addConstraint(Sketcher.Constraint("Horizontal", 11, 3, 12, 3))
sketch6.addConstraint(Sketcher.Constraint("Horizontal", 10, 3, 13, 3))
sketch6.addConstraint(Sketcher.Constraint("Horizontal", 15, 3, 16, 3))
sketch6.addConstraint(Sketcher.Constraint("Horizontal", 14, 3, 17, 3))
sketch6.addConstraint(Sketcher.Constraint("Vertical", 3, 3, 4, 3))
sketch6.addConstraint(Sketcher.Constraint("Vertical", 2, 3, 5, 3))
sketch6.addConstraint(Sketcher.Constraint("Vertical", 1, 3, 6, 3))
sketch6.addConstraint(Sketcher.Constraint("Vertical", 0, 3, 7, 3))
sketch6.addConstraint(Sketcher.Constraint("Vertical", 8, 3, 9, 3))
sketch6.addConstraint(Sketcher.Constraint("Vertical", 13, 3, 14, 3))
sketch6.addConstraint(Sketcher.Constraint("Vertical", 12, 3, 15, 3))
sketch6.addConstraint(Sketcher.Constraint("Vertical", 11, 3, 16, 3))
sketch6.addConstraint(Sketcher.Constraint("Vertical", 10, 3, 17, 3))
sketch6.addConstraint(Sketcher.Constraint("DistanceX", -1, 1, 8, 3, Q("5 in")))
sketch6.addConstraint(Sketcher.Constraint("DistanceY", -1, 1, 10, 3, Q("1 in")))
sketch6.addConstraint(Sketcher.Constraint("DistanceY", -1, 1, 14, 3, Q("9 in")))
sketch6.addConstraint(Sketcher.Constraint("DistanceX", 1, 3, 2, 3, Q("3 in")))
sketch6.addConstraint(Sketcher.Constraint("DistanceX", -1, 1, 1, 3, Q("3.5 in")))
sketch6.addConstraint(Sketcher.Constraint("DistanceY", -1, 1, 8, 3, Q("0.5 in")))
sketch6.addConstraint(Sketcher.Constraint("DistanceY", -1, 1, 9, 3, Q("9.5 in")))
sketch6.addConstraint(Sketcher.Constraint("DistanceY", 3, 3, 4, 3, Q("8.5 in")))
sketch6.addConstraint(Sketcher.Constraint("Diameter", 0, Q("2 mm")))
sketch6.addConstraint(Sketcher.Constraint("Diameter", 8, Q("2.9 mm")))
sketch6.addConstraint(Sketcher.Constraint("DistanceY", -1, 1, 0, 3, Q("0.75 in")))
sketch6.addConstraint(Sketcher.Constraint("DistanceX", -1, 1, 11, 3, Q("1.85 in")))
sketch6.addConstraint(Sketcher.Constraint("DistanceX", -1, 1, 12, 3, Q("8.15 in")))
sketch6.addConstraint(Sketcher.Constraint("DistanceX", -1, 1, 0, 3, Q("82.4 mm")))
sketch6.addConstraint(Sketcher.Constraint("DistanceX", -1, 1, 3, 3, Q("171.6 mm")))
sketch6.addConstraint(Sketcher.Constraint("DistanceY", -1, 1, 11, 3, Q("28.8188 mm")))
sketch6.addConstraint(Sketcher.Constraint("DistanceY", -1, 1, 15, 3, Q("225.1812 mm")))
sketch6.addConstraint(Sketcher.Constraint("DistanceX", -1, 1, 10, 3, Q("52.518273 mm")))
sketch6.addConstraint(Sketcher.Constraint("DistanceX", -1, 1, 13, 3, Q("201.481727 mm")))
pocket5 = doc.addObject("PartDesign::Pocket", "Pocket004")
body.addObject(pocket5)
pocket5.Profile = sketch6
pocket5.Type = "ThroughAll"

# Sketch on XY plane
sketch7 = doc.addObject("Sketcher::SketchObject", "Sketch006")
body.addObject(sketch7)
sketch7.AttachmentSupport = (doc.XY_Plane, [""])
sketch7.MapMode = "FlatFace"
sketch7.AttachmentOffset = App.Placement(V(0, 0, 0.21 * 25.4), App.Rotation())
sketch7.addGeometry(Part.Circle(V(38.1, 59.69, 0), V(0, 0, 1), 15.24), False)
sketch7.addGeometry(Part.Circle(V(38.1, 39.751, 0), V(0, 0, 1), 2.159), False)
sketch7.addGeometry(Part.Circle(V(38.1, 79.629, 0), V(0, 0, 1), 2.159), False)
sketch7.addGeometry(Part.Circle(V(215.9, 79.629, 0), V(0, 0, 1), 2.159), False)
sketch7.addGeometry(Part.Circle(V(215.9, 39.751, 0), V(0, 0, 1), 2.159), False)
sketch7.addGeometry(Part.Circle(V(215.9, 59.69, 0), V(0, 0, 1), 15.24), False)
sketch7.addGeometry(Part.Circle(V(215.9, 194.31, 0), V(0, 0, 1), 15.24), False)
sketch7.addGeometry(Part.Circle(V(215.9, 214.249, 0), V(0, 0, 1), 2.159), False)
sketch7.addGeometry(Part.Circle(V(215.9, 174.371, 0), V(0, 0, 1), 2.159), False)
sketch7.addGeometry(Part.Circle(V(38.1, 174.371, 0), V(0, 0, 1), 2.159), False)
sketch7.addGeometry(Part.Circle(V(38.1, 214.249, 0), V(0, 0, 1), 2.159), False)
sketch7.addGeometry(Part.Circle(V(38.1, 194.31, 0), V(0, 0, 1), 15.24), False)
sketch7.addConstraint(Sketcher.Constraint("Equal", 1, 2))
sketch7.addConstraint(Sketcher.Constraint("Equal", 2, 3))
sketch7.addConstraint(Sketcher.Constraint("Equal", 3, 4))
sketch7.addConstraint(Sketcher.Constraint("Equal", 0, 5))
sketch7.addConstraint(Sketcher.Constraint("Equal", 5, 6))
sketch7.addConstraint(Sketcher.Constraint("Equal", 4, 7))
sketch7.addConstraint(Sketcher.Constraint("Equal", 7, 8))
sketch7.addConstraint(Sketcher.Constraint("Equal", 8, 9))
sketch7.addConstraint(Sketcher.Constraint("Equal", 9, 10))
sketch7.addConstraint(Sketcher.Constraint("Equal", 6, 11))
sketch7.addConstraint(Sketcher.Constraint("Horizontal", 2, 3, 3, 3))
sketch7.addConstraint(Sketcher.Constraint("Horizontal", 1, 3, 4, 3))
sketch7.addConstraint(Sketcher.Constraint("Horizontal", 0, 3, 5, 3))
sketch7.addConstraint(Sketcher.Constraint("Horizontal", 8, 3, 9, 3))
sketch7.addConstraint(Sketcher.Constraint("Horizontal", 7, 3, 10, 3))
sketch7.addConstraint(Sketcher.Constraint("Horizontal", 6, 3, 11, 3))
sketch7.addConstraint(Sketcher.Constraint("Vertical", 0, 3, 1, 3))
sketch7.addConstraint(Sketcher.Constraint("Vertical", 1, 3, 2, 3))
sketch7.addConstraint(Sketcher.Constraint("Vertical", 3, 3, 4, 3))
sketch7.addConstraint(Sketcher.Constraint("Vertical", 4, 3, 5, 3))
sketch7.addConstraint(Sketcher.Constraint("Vertical", 5, 3, 6, 3))
sketch7.addConstraint(Sketcher.Constraint("Vertical", 6, 3, 7, 3))
sketch7.addConstraint(Sketcher.Constraint("Vertical", 7, 3, 8, 3))
sketch7.addConstraint(Sketcher.Constraint("Vertical", 2, 3, 9, 3))
sketch7.addConstraint(Sketcher.Constraint("Vertical", 9, 3, 10, 3))
sketch7.addConstraint(Sketcher.Constraint("Vertical", 10, 3, 11, 3))
sketch7.addConstraint(Sketcher.Constraint("Diameter", 0, Q("1.2 in")))
sketch7.addConstraint(Sketcher.Constraint("Diameter", 1, Q("0.17 in")))
sketch7.addConstraint(Sketcher.Constraint("DistanceX", 2, 3, 3, 3, Q("7 in")))
sketch7.addConstraint(Sketcher.Constraint("DistanceX", -1, 1, 0, 3, Q("1.5 in")))
sketch7.addConstraint(Sketcher.Constraint("DistanceY", 5, 3, 6, 3, Q("5.3 in")))
sketch7.addConstraint(Sketcher.Constraint("DistanceY", 3, 3, 7, 3, Q("5.3 in")))
sketch7.addConstraint(Sketcher.Constraint("DistanceY", 4, 3, 8, 3, Q("5.3 in")))
sketch7.addConstraint(Sketcher.Constraint("DistanceY", -1, 1, 0, 3, Q("2.35 in")))
sketch7.addConstraint(Sketcher.Constraint("DistanceY", 1, 3, 2, 3, Q("1.57 in")))
sketch7.addConstraint(Sketcher.Constraint("DistanceY", -1, 1, 1, 3, Q("1.565 in")))
pocket6 = doc.addObject("PartDesign::Pocket", "Pocket005")
body.addObject(pocket6)
pocket6.Profile = sketch7
pocket6.Type = "ThroughAll"

doc.recompute()
